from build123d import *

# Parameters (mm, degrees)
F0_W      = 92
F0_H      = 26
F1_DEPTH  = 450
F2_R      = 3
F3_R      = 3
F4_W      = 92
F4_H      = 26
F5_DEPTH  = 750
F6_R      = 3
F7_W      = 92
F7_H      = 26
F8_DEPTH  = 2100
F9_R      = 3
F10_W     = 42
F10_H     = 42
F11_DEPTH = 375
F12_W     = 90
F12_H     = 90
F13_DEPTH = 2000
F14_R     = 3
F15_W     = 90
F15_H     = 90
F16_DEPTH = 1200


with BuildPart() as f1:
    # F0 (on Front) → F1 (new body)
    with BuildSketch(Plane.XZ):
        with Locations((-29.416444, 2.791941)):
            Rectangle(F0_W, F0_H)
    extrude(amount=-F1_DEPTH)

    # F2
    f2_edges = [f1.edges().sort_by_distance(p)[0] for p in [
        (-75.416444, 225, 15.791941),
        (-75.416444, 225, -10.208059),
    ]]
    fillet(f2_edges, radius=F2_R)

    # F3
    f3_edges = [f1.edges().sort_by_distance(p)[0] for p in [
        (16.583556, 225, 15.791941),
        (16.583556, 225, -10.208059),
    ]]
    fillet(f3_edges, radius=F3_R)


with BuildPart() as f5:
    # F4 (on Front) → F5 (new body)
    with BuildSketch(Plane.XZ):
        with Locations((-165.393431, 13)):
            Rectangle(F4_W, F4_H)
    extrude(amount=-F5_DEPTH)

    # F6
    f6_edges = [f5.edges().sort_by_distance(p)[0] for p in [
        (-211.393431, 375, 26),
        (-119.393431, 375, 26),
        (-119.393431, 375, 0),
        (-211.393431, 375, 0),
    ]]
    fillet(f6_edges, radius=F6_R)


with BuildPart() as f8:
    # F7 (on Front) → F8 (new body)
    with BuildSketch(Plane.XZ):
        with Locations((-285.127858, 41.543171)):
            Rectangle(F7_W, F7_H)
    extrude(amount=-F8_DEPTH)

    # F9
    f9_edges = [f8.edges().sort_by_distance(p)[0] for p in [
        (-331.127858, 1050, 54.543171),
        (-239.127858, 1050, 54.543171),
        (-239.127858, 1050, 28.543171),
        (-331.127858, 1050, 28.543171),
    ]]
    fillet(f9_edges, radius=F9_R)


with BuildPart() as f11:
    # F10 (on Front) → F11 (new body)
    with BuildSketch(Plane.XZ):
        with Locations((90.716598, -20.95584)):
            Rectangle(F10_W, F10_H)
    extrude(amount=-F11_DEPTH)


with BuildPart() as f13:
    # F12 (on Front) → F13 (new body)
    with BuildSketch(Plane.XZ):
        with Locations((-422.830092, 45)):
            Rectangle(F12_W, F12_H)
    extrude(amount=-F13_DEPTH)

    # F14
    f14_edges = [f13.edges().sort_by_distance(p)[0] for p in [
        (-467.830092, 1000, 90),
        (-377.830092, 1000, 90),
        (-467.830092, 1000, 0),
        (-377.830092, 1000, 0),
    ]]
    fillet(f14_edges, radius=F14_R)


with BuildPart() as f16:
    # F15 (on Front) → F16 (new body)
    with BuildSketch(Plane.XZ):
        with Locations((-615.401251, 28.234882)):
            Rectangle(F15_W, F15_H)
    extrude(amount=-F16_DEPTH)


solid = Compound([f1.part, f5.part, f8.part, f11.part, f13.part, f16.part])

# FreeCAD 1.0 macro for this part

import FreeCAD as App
import Part
import Sketcher

V = App.Vector


def edges_at(feature, points):
    """Names of the edges that pass closest to the given points."""
    edges = feature.Shape.Edges
    near = lambda p: min(range(len(edges)), key=lambda i: edges[i].distToShape(Part.Vertex(*p))[0])
    return sorted({f"Edge{near(p) + 1}" for p in points})


def add_polygon(sketch, points):
    """Adds a closed chain of lines whose ends are joined by coincident constraints."""
    first, n = sketch.GeometryCount, len(points)
    for a, b in zip(points, points[1:] + points[:1]):
        sketch.addGeometry(Part.LineSegment(App.Vector(*a, 0), App.Vector(*b, 0)), False)
    for i in range(n):
        sketch.addConstraint(Sketcher.Constraint("Coincident", first + i, 2, first + (i + 1) % n, 1))

doc = App.newDocument("Part")
body = doc.addObject("PartDesign::Body", "Body")

sketch1 = body.newObject("Sketcher::SketchObject", "Sketch")
sketch1.AttachmentSupport = (doc.getObject("XZ_Plane"), [""])
sketch1.MapMode = "FlatFace"
add_polygon(sketch1, [(-75, 16), (-75, -10), (17, -10), (17, 16)])
sketch1.addConstraint([
    Sketcher.Constraint("Vertical", 0),
    Sketcher.Constraint("Horizontal", 1),
    Sketcher.Constraint("Vertical", 2),
    Sketcher.Constraint("Horizontal", 3),
    Sketcher.Constraint("DistanceX", 1, 1, 1, 2, 92.0),
    Sketcher.Constraint("DistanceY", 0, 2, 0, 1, 26.0),
    Sketcher.Constraint("DistanceY", 0, 2, -1, 1, 10.208059),
    Sketcher.Constraint("DistanceX", 0, 2, -1, 1, 75.416444),
])
pad1 = body.newObject("PartDesign::Pad", "Pad")
pad1.Profile = sketch1
pad1.Length = 450
pad1.Reversed = True
doc.recompute()

fillet = body.newObject("PartDesign::Fillet", "Fillet")
fillet.Base = (pad1, edges_at(pad1, [(-75.416, 225, 15.792), (-75.416, 225, -10.208)]))
fillet.Radius = 3
doc.recompute()

fillet2 = body.newObject("PartDesign::Fillet", "Fillet001")
fillet2.Base = (fillet, edges_at(fillet, [(16.584, 225, 15.792), (16.584, 225, -10.208)]))
fillet2.Radius = 3
body2 = doc.addObject("PartDesign::Body", "Body001")

sketch2 = body2.newObject("Sketcher::SketchObject", "Sketch001")
sketch2.AttachmentSupport = (doc.getObject("XZ_Plane001"), [""])
sketch2.MapMode = "FlatFace"
add_polygon(sketch2, [(-211, 26), (-211, 0), (-119, 0), (-119, 26)])
sketch2.addConstraint([
    Sketcher.Constraint("Vertical", 0),
    Sketcher.Constraint("Horizontal", 1),
    Sketcher.Constraint("Vertical", 2),
    Sketcher.Constraint("Horizontal", 3),
    Sketcher.Constraint("PointOnObject", 0, 2, -1),
    Sketcher.Constraint("DistanceX", 1, 1, 1, 2, 92.0),
    Sketcher.Constraint("DistanceY", 0, 2, 0, 1, 26.0),
    Sketcher.Constraint("DistanceX", 0, 2, -1, 1, 211.393431),
])
pad2 = body2.newObject("PartDesign::Pad", "Pad001")
pad2.Profile = sketch2
pad2.Length = 750
pad2.Reversed = True
doc.recompute()

fillet3 = body2.newObject("PartDesign::Fillet", "Fillet002")
fillet3.Base = (pad2, edges_at(pad2, [
    (-211.393, 375, 26),
    (-119.393, 375, 26),
    (-119.393, 375, 0),
    (-211.393, 375, 0),
]))
fillet3.Radius = 3
body3 = doc.addObject("PartDesign::Body", "Body002")

sketch3 = body3.newObject("Sketcher::SketchObject", "Sketch002")
sketch3.AttachmentSupport = (doc.getObject("XZ_Plane002"), [""])
sketch3.MapMode = "FlatFace"
add_polygon(sketch3, [(-331, 55), (-331, 29), (-239, 29), (-239, 55)])
sketch3.addConstraint([
    Sketcher.Constraint("Vertical", 0),
    Sketcher.Constraint("Horizontal", 1),
    Sketcher.Constraint("Vertical", 2),
    Sketcher.Constraint("Horizontal", 3),
    Sketcher.Constraint("DistanceX", 1, 1, 1, 2, 92.0),
    Sketcher.Constraint("DistanceY", 0, 2, 0, 1, 26.0),
    Sketcher.Constraint("DistanceX", 0, 2, -1, 1, 331.127858),
    Sketcher.Constraint("DistanceY", -1, 1, 0, 2, 28.543171),
])
pad3 = body3.newObject("PartDesign::Pad", "Pad002")
pad3.Profile = sketch3
pad3.Length = 2100
pad3.Reversed = True
doc.recompute()

fillet4 = body3.newObject("PartDesign::Fillet", "Fillet003")
fillet4.Base = (pad3, edges_at(pad3, [
    (-331.128, 1050, 54.543),
    (-239.128, 1050, 54.543),
    (-239.128, 1050, 28.543),
    (-331.128, 1050, 28.543),
]))
fillet4.Radius = 3
body4 = doc.addObject("PartDesign::Body", "Body003")

sketch4 = body4.newObject("Sketcher::SketchObject", "Sketch003")
sketch4.AttachmentSupport = (doc.getObject("XZ_Plane003"), [""])
sketch4.MapMode = "FlatFace"
add_polygon(sketch4, [(70, 0), (70, -42), (112, -42), (112, 0)])
sketch4.addConstraint([
    Sketcher.Constraint("Vertical", 0),
    Sketcher.Constraint("Horizontal", 1),
    Sketcher.Constraint("Vertical", 2),
    Sketcher.Constraint("Horizontal", 3),
    Sketcher.Constraint("Equal", 3, 0),
    Sketcher.Constraint("DistanceX", 1, 1, 1, 2, 42.0),
    Sketcher.Constraint("DistanceX", -1, 1, 0, 2, 69.716598),
    Sketcher.Constraint("DistanceY", 0, 2, -1, 1, 41.95584),
])
pad4 = body4.newObject("PartDesign::Pad", "Pad003")
pad4.Profile = sketch4
pad4.Length = 375
pad4.Reversed = True
body5 = doc.addObject("PartDesign::Body", "Body004")

sketch5 = body5.newObject("Sketcher::SketchObject", "Sketch004")
sketch5.AttachmentSupport = (doc.getObject("XZ_Plane004"), [""])
sketch5.MapMode = "FlatFace"
add_polygon(sketch5, [(-468, 90), (-468, 0), (-378, 0), (-378, 90)])
sketch5.addConstraint([
    Sketcher.Constraint("Vertical", 0),
    Sketcher.Constraint("Horizontal", 1),
    Sketcher.Constraint("Vertical", 2),
    Sketcher.Constraint("Horizontal", 3),
    Sketcher.Constraint("PointOnObject", 0, 2, -1),
    Sketcher.Constraint("Equal", 3, 0),
    Sketcher.Constraint("DistanceX", 1, 1, 1, 2, 90.0),
    Sketcher.Constraint("DistanceX", 0, 2, -1, 1, 467.830092),
])
pad5 = body5.newObject("PartDesign::Pad", "Pad004")
pad5.Profile = sketch5
pad5.Length = 2000
pad5.Reversed = True
doc.recompute()

fillet5 = body5.newObject("PartDesign::Fillet", "Fillet004")
fillet5.Base = (pad5, edges_at(pad5, [
    (-467.83, 1000, 90),
    (-377.83, 1000, 90),
    (-467.83, 1000, 0),
    (-377.83, 1000, 0),
]))
fillet5.Radius = 3
body6 = doc.addObject("PartDesign::Body", "Body005")

sketch6 = body6.newObject("Sketcher::SketchObject", "Sketch005")
sketch6.AttachmentSupport = (doc.getObject("XZ_Plane005"), [""])
sketch6.MapMode = "FlatFace"
add_polygon(sketch6, [(-660, 73), (-660, -17), (-570, -17), (-570, 73)])
sketch6.addConstraint([
    Sketcher.Constraint("Vertical", 0),
    Sketcher.Constraint("Horizontal", 1),
    Sketcher.Constraint("Vertical", 2),
    Sketcher.Constraint("Horizontal", 3),
    Sketcher.Constraint("Equal", 3, 0),
    Sketcher.Constraint("DistanceX", 1, 1, 1, 2, 90.0),
    Sketcher.Constraint("DistanceX", 0, 2, -1, 1, 660.401251),
    Sketcher.Constraint("DistanceY", 0, 2, -1, 1, 16.765118),
])
pad6 = body6.newObject("PartDesign::Pad", "Pad005")
pad6.Profile = sketch6
pad6.Length = 1200
pad6.Reversed = True

doc.recompute()
